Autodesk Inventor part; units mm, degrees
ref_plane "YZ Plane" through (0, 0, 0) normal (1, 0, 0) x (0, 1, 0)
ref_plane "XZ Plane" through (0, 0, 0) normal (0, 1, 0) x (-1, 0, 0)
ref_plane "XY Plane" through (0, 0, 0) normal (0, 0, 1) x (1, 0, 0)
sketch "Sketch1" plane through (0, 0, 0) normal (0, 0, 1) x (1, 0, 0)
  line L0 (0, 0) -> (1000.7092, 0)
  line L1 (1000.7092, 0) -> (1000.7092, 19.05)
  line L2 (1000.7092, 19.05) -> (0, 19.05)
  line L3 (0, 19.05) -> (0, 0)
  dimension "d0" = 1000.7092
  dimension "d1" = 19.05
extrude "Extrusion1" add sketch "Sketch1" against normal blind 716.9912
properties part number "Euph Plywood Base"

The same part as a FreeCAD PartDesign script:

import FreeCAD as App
import Part
import Sketcher

V = App.Vector
Q = App.Units.Quantity


def add_polygon(sketch, points):
    """Adds a closed chain of lines whose ends are joined by coincident constraints."""
    first, n = sketch.GeometryCount, len(points)
    for a, b in zip(points, points[1:] + points[:1]):
        sketch.addGeometry(Part.LineSegment(App.Vector(*a, 0), App.Vector(*b, 0)), False)
    for i in range(n):
        sketch.addConstraint(Sketcher.Constraint("Coincident", first + i, 2, first + (i + 1) % n, 1))

doc = App.newDocument("Part")
body = doc.addObject("PartDesign::Body", "Body")

sketch1 = body.newObject("Sketcher::SketchObject", "Sketch")
sketch1.AttachmentSupport = (doc.getObject("XY_Plane"), [""])
sketch1.MapMode = "FlatFace"
add_polygon(sketch1, [(0, 19), (0, 0), (1001, 0), (1001, 19)])
sketch1.addConstraint([
    Sketcher.Constraint("Vertical", 0),
    Sketcher.Constraint("Horizontal", 1),
    Sketcher.Constraint("Vertical", 2),
    Sketcher.Constraint("Horizontal", 3),
    Sketcher.Constraint("Coincident", 0, 2, -1, 1),
    Sketcher.Constraint("DistanceY", 0, 2, 0, 1, Q("0.75 in")),
    Sketcher.Constraint("DistanceX", 1, 1, 1, 2, Q("39.398 in")),
])
pad1 = body.newObject("PartDesign::Pad", "Pad")
pad1.Profile = sketch1
pad1.Length = Q("28.228 in")
pad1.Reversed = True

doc.recompute()
